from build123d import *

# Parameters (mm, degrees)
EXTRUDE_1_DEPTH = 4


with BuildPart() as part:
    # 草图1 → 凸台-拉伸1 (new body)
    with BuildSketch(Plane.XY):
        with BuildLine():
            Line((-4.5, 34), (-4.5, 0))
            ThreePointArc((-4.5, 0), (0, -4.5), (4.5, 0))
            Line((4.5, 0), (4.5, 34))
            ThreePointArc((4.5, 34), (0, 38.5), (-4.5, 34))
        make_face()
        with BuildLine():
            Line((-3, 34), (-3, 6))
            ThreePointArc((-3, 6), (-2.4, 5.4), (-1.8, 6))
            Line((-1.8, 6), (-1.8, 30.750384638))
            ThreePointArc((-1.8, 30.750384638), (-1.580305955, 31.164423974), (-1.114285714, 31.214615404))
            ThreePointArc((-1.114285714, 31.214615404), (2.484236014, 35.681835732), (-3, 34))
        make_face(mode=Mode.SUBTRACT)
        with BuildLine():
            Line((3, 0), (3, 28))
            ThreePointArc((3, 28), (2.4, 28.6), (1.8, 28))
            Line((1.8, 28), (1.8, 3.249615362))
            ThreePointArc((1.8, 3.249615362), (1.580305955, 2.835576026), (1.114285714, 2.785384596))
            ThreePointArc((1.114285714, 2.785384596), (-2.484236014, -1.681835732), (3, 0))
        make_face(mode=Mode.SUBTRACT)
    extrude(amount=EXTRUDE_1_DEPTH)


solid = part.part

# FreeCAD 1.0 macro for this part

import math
import FreeCAD as App
import Part
import Sketcher
from FreeCAD import Vector
Q = App.Units.Quantity

doc = App.newDocument("Part")
body = doc.addObject("PartDesign::Body", "Body")

# Sketch on XY plane
sketch1 = body.newObject("Sketcher::SketchObject", "Sketch")
sketch1.AttachmentSupport = (doc.getObject("XY_Plane"), [""])
sketch1.MapMode = "FlatFace"
sketch1.addGeometry(Part.LineSegment(Vector(-4.5, 34, 0), Vector(-4.5, 0, 0)), False)
sketch1.addGeometry(Part.ArcOfCircle(Part.Circle(Vector(0, 0, 0), Vector(0, 0, 1), 4.5), math.radians(180), math.radians(360)), False)
sketch1.addGeometry(Part.LineSegment(Vector(4.5, 0, 0), Vector(4.5, 34, 0)), False)
sketch1.addGeometry(Part.ArcOfCircle(Part.Circle(Vector(0, 34, 0), Vector(0, 0, 1), 4.5), math.radians(0), math.radians(180)), False)
sketch1.addGeometry(Part.LineSegment(Vector(3, 28, 0), Vector(3, 0, 0)), False)
sketch1.addGeometry(Part.ArcOfCircle(Part.Circle(Vector(0, 0, 0), Vector(0, 0, 1), 3), math.radians(68), math.radians(360)), False)
sketch1.addGeometry(Part.ArcOfCircle(Part.Circle(Vector(1.3, 3.2, 0), Vector(0, 0, 1), 0.5), math.radians(-112), math.radians(0)), False)
sketch1.addGeometry(Part.LineSegment(Vector(1.8, 3.2, 0), Vector(1.8, 28, 0)), False)
sketch1.addGeometry(Part.ArcOfCircle(Part.Circle(Vector(2.4, 28, 0), Vector(0, 0, 1), 0.6), math.radians(0), math.radians(180)), False)
sketch1.addGeometry(Part.LineSegment(Vector(-3, 6, 0), Vector(-3, 34, 0)), False)
sketch1.addGeometry(Part.ArcOfCircle(Part.Circle(Vector(0, 34, 0), Vector(0, 0, 1), 3), math.radians(-112), math.radians(180)), False)
sketch1.addGeometry(Part.ArcOfCircle(Part.Circle(Vector(-1.3, 30.8, 0), Vector(0, 0, 1), 0.5), math.radians(68), math.radians(180)), False)
sketch1.addGeometry(Part.LineSegment(Vector(-1.8, 30.8, 0), Vector(-1.8, 6, 0)), False)
sketch1.addGeometry(Part.ArcOfCircle(Part.Circle(Vector(-2.4, 6, 0), Vector(0, 0, 1), 0.6), math.radians(180), math.radians(360)), False)
sketch1.addConstraint(Sketcher.Constraint("Tangent", 0, 2, 1, 1))
sketch1.addConstraint(Sketcher.Constraint("Tangent", 1, 2, 2, 1))
sketch1.addConstraint(Sketcher.Constraint("Tangent", 2, 2, 3, 1))
sketch1.addConstraint(Sketcher.Constraint("Tangent", 3, 2, 0, 1))
sketch1.addConstraint(Sketcher.Constraint("Tangent", 4, 2, 5, 2))
sketch1.addConstraint(Sketcher.Constraint("Tangent", 5, 1, 6, 1))
sketch1.addConstraint(Sketcher.Constraint("Tangent", 6, 2, 7, 1))
sketch1.addConstraint(Sketcher.Constraint("Tangent", 7, 2, 8, 2))
sketch1.addConstraint(Sketcher.Constraint("Tangent", 8, 1, 4, 1))
sketch1.addConstraint(Sketcher.Constraint("Tangent", 9, 2, 10, 2))
sketch1.addConstraint(Sketcher.Constraint("Tangent", 10, 1, 11, 1))
sketch1.addConstraint(Sketcher.Constraint("Tangent", 11, 2, 12, 1))
sketch1.addConstraint(Sketcher.Constraint("Tangent", 12, 2, 13, 2))
sketch1.addConstraint(Sketcher.Constraint("Tangent", 13, 1, 9, 1))
sketch1.addConstraint(Sketcher.Constraint("Vertical", 0))
sketch1.addConstraint(Sketcher.Constraint("Vertical", 2))
sketch1.addConstraint(Sketcher.Constraint("Vertical", 4))
sketch1.addConstraint(Sketcher.Constraint("Vertical", 7))
sketch1.addConstraint(Sketcher.Constraint("Vertical", 9))
sketch1.addConstraint(Sketcher.Constraint("Vertical", 12))
sketch1.addConstraint(Sketcher.Constraint("Coincident", 1, 3, -1, 1))
sketch1.addConstraint(Sketcher.Constraint("Coincident", 5, 3, -1, 1))
sketch1.addConstraint(Sketcher.Constraint("Coincident", 10, 3, 3, 3))
sketch1.addConstraint(Sketcher.Constraint("Equal", 5, 10))
sketch1.addConstraint(Sketcher.Constraint("Equal", 6, 11))
sketch1.addConstraint(Sketcher.Constraint("Equal", 8, 13))
sketch1.addConstraint(Sketcher.Constraint("Equal", 4, 9))
sketch1.addConstraint(Sketcher.Constraint("Radius", 5, Q("3 mm")))
sketch1.addConstraint(Sketcher.Constraint("Radius", 1, Q("4.5 mm")))
sketch1.addConstraint(Sketcher.Constraint("Radius", 6, Q("0.5 mm")))
sketch1.addConstraint(Sketcher.Constraint("Radius", 8, Q("0.6 mm")))
sketch1.addConstraint(Sketcher.Constraint("DistanceY", 0, 2, 0, 1, Q("34 mm")))
sketch1.addConstraint(Sketcher.Constraint("DistanceY", 4, 2, 4, 1, Q("28 mm")))
pad1 = body.newObject("PartDesign::Pad", "Pad")
pad1.Profile = sketch1
pad1.Length = 4

doc.recompute()
